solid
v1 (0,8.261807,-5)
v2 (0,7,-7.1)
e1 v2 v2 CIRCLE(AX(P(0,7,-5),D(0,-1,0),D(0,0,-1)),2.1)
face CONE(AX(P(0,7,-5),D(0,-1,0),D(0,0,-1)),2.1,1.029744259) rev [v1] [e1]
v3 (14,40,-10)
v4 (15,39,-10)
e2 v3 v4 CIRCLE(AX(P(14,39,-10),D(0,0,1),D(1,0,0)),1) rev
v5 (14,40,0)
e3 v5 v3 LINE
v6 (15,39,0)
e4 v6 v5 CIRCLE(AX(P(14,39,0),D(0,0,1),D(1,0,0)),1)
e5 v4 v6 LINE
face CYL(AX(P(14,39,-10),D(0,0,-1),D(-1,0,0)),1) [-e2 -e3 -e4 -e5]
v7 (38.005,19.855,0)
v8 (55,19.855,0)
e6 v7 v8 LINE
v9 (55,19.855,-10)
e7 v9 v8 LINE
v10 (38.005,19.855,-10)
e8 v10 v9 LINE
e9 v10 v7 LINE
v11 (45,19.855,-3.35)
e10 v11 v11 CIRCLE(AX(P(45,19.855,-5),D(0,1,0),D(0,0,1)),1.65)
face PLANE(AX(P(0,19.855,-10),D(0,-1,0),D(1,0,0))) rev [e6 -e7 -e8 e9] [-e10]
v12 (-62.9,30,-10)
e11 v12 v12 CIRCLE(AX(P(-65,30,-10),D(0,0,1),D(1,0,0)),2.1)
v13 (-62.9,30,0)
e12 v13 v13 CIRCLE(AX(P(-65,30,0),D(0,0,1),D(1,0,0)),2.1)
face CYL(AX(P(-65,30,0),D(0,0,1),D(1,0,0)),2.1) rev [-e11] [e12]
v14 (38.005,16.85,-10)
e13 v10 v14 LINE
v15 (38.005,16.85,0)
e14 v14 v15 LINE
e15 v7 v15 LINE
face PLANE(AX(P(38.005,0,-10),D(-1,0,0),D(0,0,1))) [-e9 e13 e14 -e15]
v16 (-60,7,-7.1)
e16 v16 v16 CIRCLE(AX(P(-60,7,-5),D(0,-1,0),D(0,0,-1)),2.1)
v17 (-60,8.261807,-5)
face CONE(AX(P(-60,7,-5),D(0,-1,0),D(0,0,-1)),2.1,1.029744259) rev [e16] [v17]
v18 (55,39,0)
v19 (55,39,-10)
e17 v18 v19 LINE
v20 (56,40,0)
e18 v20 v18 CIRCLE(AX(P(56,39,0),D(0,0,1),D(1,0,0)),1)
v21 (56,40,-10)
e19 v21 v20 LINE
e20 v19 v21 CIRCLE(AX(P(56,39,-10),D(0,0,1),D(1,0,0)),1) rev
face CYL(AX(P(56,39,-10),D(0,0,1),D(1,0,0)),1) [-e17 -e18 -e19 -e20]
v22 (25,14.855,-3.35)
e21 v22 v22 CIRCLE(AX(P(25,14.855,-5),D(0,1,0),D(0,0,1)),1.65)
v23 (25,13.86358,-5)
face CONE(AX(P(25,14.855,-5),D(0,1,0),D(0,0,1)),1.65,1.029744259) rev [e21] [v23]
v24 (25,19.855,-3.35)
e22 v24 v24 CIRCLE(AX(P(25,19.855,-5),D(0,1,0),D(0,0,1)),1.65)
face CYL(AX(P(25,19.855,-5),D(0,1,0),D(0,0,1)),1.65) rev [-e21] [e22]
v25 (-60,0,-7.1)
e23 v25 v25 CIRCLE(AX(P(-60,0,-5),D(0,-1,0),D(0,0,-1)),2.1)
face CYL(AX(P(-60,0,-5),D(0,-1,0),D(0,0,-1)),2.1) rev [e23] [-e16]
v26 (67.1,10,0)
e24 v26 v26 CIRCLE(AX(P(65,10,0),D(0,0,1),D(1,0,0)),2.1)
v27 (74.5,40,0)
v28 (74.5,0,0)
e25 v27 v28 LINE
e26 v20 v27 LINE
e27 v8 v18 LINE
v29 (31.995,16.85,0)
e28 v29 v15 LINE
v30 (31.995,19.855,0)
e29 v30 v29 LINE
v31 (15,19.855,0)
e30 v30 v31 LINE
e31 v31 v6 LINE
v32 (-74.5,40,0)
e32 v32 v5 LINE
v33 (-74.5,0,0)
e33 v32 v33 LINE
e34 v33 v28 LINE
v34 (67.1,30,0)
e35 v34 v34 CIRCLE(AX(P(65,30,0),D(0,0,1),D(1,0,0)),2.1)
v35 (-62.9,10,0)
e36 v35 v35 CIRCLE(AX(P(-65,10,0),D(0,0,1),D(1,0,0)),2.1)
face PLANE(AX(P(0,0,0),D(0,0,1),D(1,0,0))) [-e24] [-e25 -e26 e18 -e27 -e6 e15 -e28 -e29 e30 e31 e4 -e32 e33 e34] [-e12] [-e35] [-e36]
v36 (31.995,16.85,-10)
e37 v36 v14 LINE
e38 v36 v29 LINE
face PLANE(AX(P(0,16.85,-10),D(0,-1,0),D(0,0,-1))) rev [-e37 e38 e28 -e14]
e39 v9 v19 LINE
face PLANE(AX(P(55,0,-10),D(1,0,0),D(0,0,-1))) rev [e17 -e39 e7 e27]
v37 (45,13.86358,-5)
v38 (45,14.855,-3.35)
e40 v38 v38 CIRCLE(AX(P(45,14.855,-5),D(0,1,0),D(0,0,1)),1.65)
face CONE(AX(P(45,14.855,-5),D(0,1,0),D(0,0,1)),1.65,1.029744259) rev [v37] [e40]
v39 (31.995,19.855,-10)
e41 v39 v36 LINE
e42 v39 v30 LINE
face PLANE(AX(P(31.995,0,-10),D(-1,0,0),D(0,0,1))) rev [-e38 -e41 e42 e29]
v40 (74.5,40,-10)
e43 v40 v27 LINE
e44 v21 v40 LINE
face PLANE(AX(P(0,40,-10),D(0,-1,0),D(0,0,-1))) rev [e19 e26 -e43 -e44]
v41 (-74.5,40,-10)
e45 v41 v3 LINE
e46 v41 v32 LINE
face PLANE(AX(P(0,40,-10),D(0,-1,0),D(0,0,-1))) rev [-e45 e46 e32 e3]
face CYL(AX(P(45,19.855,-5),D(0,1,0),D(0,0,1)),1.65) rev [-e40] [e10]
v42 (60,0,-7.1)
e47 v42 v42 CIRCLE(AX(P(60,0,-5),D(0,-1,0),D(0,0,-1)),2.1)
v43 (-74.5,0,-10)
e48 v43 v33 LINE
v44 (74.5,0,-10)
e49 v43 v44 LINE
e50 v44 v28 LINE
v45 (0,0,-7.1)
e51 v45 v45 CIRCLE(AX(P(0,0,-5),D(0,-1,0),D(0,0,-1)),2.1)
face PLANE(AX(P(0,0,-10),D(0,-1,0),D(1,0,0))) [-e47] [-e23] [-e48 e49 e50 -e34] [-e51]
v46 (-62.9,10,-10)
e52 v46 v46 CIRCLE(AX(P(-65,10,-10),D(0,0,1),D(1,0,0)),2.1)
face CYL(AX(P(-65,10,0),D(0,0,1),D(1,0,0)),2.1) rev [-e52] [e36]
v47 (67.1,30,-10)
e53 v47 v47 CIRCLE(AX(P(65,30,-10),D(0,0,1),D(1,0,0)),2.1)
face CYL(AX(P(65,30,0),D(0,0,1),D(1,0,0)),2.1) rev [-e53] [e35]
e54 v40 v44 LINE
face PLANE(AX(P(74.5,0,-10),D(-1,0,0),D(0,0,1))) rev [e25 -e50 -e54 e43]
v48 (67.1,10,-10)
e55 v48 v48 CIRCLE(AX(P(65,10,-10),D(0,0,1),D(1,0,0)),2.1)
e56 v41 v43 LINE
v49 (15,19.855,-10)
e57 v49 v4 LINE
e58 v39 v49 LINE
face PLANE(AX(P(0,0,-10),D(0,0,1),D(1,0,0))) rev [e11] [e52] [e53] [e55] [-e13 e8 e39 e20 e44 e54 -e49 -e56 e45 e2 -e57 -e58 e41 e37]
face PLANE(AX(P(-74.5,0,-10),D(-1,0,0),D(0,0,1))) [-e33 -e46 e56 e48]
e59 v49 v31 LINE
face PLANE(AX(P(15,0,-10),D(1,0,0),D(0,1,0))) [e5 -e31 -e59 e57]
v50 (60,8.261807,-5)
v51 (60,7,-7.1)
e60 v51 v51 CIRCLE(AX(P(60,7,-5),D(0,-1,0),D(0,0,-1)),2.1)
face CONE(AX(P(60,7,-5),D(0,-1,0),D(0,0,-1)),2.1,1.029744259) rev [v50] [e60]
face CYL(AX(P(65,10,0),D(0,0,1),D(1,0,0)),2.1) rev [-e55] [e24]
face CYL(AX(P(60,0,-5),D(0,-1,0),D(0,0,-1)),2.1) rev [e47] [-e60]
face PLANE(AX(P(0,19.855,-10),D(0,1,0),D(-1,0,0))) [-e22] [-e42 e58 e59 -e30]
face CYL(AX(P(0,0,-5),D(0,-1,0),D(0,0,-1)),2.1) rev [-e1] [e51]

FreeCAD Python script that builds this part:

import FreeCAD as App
import Part
import Sketcher


def edges_at(feature, points):
    """Names of the edges that pass closest to the given points."""
    edges = feature.Shape.Edges
    near = lambda p: min(range(len(edges)), key=lambda i: edges[i].distToShape(Part.Vertex(*p))[0])
    return sorted({f"Edge{near(p) + 1}" for p in points})

doc = App.newDocument("Part")
body = doc.addObject("PartDesign::Body", "Body")

# Sketch on XY plane
sketch1 = body.newObject("Sketcher::SketchObject", "Sketch")
sketch1.AttachmentSupport = (doc.getObject("XY_Plane"), [""])
sketch1.MapMode = "FlatFace"
sketch1.addGeometry([
    Part.LineSegment(App.Vector(15, 40, 0), App.Vector(-74.5, 40, 0)),  # 0
    Part.LineSegment(App.Vector(-74.5, 40, 0), App.Vector(-74.5, 0, 0)),  # 1
    Part.LineSegment(App.Vector(-74.5, 0, 0), App.Vector(74.5, 0, 0)),  # 2
    Part.LineSegment(App.Vector(74.5, 0, 0), App.Vector(74.5, 40, 0)),  # 3
    Part.LineSegment(App.Vector(74.5, 40, 0), App.Vector(55, 40, 0)),  # 4
    Part.LineSegment(App.Vector(55, 40, 0), App.Vector(55, 19.855, 0)),  # 5
    Part.LineSegment(App.Vector(55, 19.855, 0), App.Vector(38.005, 19.855, 0)),  # 6
    Part.LineSegment(App.Vector(38.005, 19.855, 0), App.Vector(38.005, 16.85, 0)),  # 7
    Part.LineSegment(App.Vector(38.005, 16.85, 0), App.Vector(31.995, 16.85, 0)),  # 8
    Part.LineSegment(App.Vector(31.995, 16.85, 0), App.Vector(31.995, 19.855, 0)),  # 9
    Part.LineSegment(App.Vector(31.995, 19.855, 0), App.Vector(15, 19.855, 0)),  # 10
    Part.LineSegment(App.Vector(15, 19.855, 0), App.Vector(15, 40, 0)),  # 11
], False)
sketch1.addConstraint([
    Sketcher.Constraint("Coincident", 0, 2, 1, 1),
    Sketcher.Constraint("Coincident", 1, 2, 2, 1),
    Sketcher.Constraint("Coincident", 2, 2, 3, 1),
    Sketcher.Constraint("Coincident", 3, 2, 4, 1),
    Sketcher.Constraint("Coincident", 4, 2, 5, 1),
    Sketcher.Constraint("Coincident", 5, 2, 6, 1),
    Sketcher.Constraint("Coincident", 6, 2, 7, 1),
    Sketcher.Constraint("Coincident", 7, 2, 8, 1),
    Sketcher.Constraint("Coincident", 8, 2, 9, 1),
    Sketcher.Constraint("Coincident", 9, 2, 10, 1),
    Sketcher.Constraint("Coincident", 10, 2, 11, 1),
    Sketcher.Constraint("Coincident", 11, 2, 0, 1),
    Sketcher.Constraint("Horizontal", 0),
    Sketcher.Constraint("Vertical", 1),
    Sketcher.Constraint("Horizontal", 2),
    Sketcher.Constraint("Vertical", 3),
    Sketcher.Constraint("Horizontal", 4),
    Sketcher.Constraint("Vertical", 5),
    Sketcher.Constraint("Horizontal", 6),
    Sketcher.Constraint("Vertical", 7),
    Sketcher.Constraint("Horizontal", 8),
    Sketcher.Constraint("Vertical", 9),
    Sketcher.Constraint("Horizontal", 10),
    Sketcher.Constraint("Vertical", 11),
    Sketcher.Constraint("Symmetric", 1, 2, 2, 2, -1, 1),
    Sketcher.Constraint("Horizontal", 0, 2, 3, 2),
    Sketcher.Constraint("Horizontal", 6, 2, 9, 2),
    Sketcher.Constraint("Equal", 6, 10),
    Sketcher.Constraint("DistanceX", 2, 1, 2, 2, 149.0),
    Sketcher.Constraint("DistanceY", 1, 2, 1, 1, 40.0),
    Sketcher.Constraint("DistanceX", 0, 2, 0, 1, 89.5),
    Sketcher.Constraint("DistanceX", 4, 2, 4, 1, 19.5),
    Sketcher.Constraint("DistanceX", 8, 2, 8, 1, 6.01),
    Sketcher.Constraint("DistanceY", 5, 2, 5, 1, 20.145),
    Sketcher.Constraint("DistanceY", 7, 2, 7, 1, 3.005),
])
pad1 = body.newObject("PartDesign::Pad", "Pad")
pad1.Profile = sketch1
pad1.Length = 10
pad1.Reversed = True

# Sketch on XZ plane
sketch2 = body.newObject("Sketcher::SketchObject", "Sketch001")
sketch2.AttachmentSupport = (doc.getObject("XZ_Plane"), [""])
sketch2.MapMode = "FlatFace"
sketch2.AttachmentOffset = App.Placement(App.Vector(0, 0, -19.855), App.Rotation())
sketch2.addGeometry([
    Part.Circle(App.Vector(25, -5, 0), App.Vector(0, 0, 1), 1.65),
    Part.Circle(App.Vector(45, -5, 0), App.Vector(0, 0, 1), 1.65),
], False)
sketch2.addConstraint([
    Sketcher.Constraint("Equal", 0, 1),
    Sketcher.Constraint("Horizontal", 0, 3, 1, 3),
    Sketcher.Constraint("Diameter", 0, 3.3),
    Sketcher.Constraint("DistanceX", -1, 1, 0, 3, 25.0),
    Sketcher.Constraint("DistanceY", 0, 3, -1, 1, 5.0),
    Sketcher.Constraint("DistanceX", -1, 1, 1, 3, 45.0),
])
doc.recompute()
hole = body.newObject("PartDesign::Hole", "Hole")
hole.Profile = sketch2
hole.ThreadType = "None"
hole.Diameter = 3.3
hole.DepthType = "Dimension"
hole.Depth = 5
hole.DrillPoint = "Angled"
hole.DrillPointAngle = 118
hole.Reversed = True

# Sketch on XY plane
sketch3 = body.newObject("Sketcher::SketchObject", "Sketch002")
sketch3.AttachmentSupport = (doc.getObject("XY_Plane"), [""])
sketch3.MapMode = "FlatFace"
sketch3.addGeometry([
    Part.Circle(App.Vector(-65, 30, 0), App.Vector(0, 0, 1), 2.1),
    Part.Circle(App.Vector(-65, 10, 0), App.Vector(0, 0, 1), 2.1),
    Part.Circle(App.Vector(65, 10, 0), App.Vector(0, 0, 1), 2.1),
    Part.Circle(App.Vector(65, 30, 0), App.Vector(0, 0, 1), 2.1),
], False)
sketch3.addConstraint([
    Sketcher.Constraint("Equal", 0, 1),
    Sketcher.Constraint("Equal", 1, 2),
    Sketcher.Constraint("Equal", 2, 3),
    Sketcher.Constraint("Symmetric", 1, 3, 2, 3, -2),
    Sketcher.Constraint("Symmetric", 0, 3, 3, 3, -2),
    Sketcher.Constraint("Vertical", 0, 3, 1, 3),
    Sketcher.Constraint("Diameter", 0, 4.2),
    Sketcher.Constraint("DistanceX", 0, 3, -1, 1, 65.0),
    Sketcher.Constraint("DistanceY", -1, 1, 0, 3, 30.0),
    Sketcher.Constraint("DistanceY", -1, 1, 1, 3, 10.0),
])
doc.recompute()
hole2 = body.newObject("PartDesign::Hole", "Hole001")
hole2.Profile = sketch3
hole2.ThreadType = "None"
hole2.Diameter = 4.2
hole2.DepthType = "ThroughAll"

# Sketch on XZ plane
sketch4 = body.newObject("Sketcher::SketchObject", "Sketch003")
sketch4.AttachmentSupport = (doc.getObject("XZ_Plane"), [""])
sketch4.MapMode = "FlatFace"
sketch4.addGeometry([
    Part.Circle(App.Vector(-60, -5, 0), App.Vector(0, 0, 1), 2.1),
    Part.Circle(App.Vector(0, -5, 0), App.Vector(0, 0, 1), 2.1),
    Part.Circle(App.Vector(60, -5, 0), App.Vector(0, 0, 1), 2.1),
], False)
sketch4.addConstraint([
    Sketcher.Constraint("Equal", 0, 1),
    Sketcher.Constraint("Equal", 1, 2),
    Sketcher.Constraint("Symmetric", 0, 3, 2, 3, -2),
    Sketcher.Constraint("PointOnObject", 1, 3, -2),
    Sketcher.Constraint("Horizontal", 0, 3, 1, 3),
    Sketcher.Constraint("Diameter", 0, 4.2),
    Sketcher.Constraint("DistanceX", 0, 3, -1, 1, 60.0),
    Sketcher.Constraint("DistanceY", 0, 3, -1, 1, 5.0),
])
doc.recompute()
hole3 = body.newObject("PartDesign::Hole", "Hole002")
hole3.Profile = sketch4
hole3.ThreadType = "None"
hole3.Diameter = 4.2
hole3.DepthType = "Dimension"
hole3.Depth = 7
hole3.DrillPoint = "Angled"
hole3.DrillPointAngle = 118
doc.recompute()

fillet = body.newObject("PartDesign::Fillet", "Fillet")
fillet.Base = (hole3, edges_at(hole3, [(55, 40, -5), (15, 40, -5)]))
fillet.Radius = 1

doc.recompute()
